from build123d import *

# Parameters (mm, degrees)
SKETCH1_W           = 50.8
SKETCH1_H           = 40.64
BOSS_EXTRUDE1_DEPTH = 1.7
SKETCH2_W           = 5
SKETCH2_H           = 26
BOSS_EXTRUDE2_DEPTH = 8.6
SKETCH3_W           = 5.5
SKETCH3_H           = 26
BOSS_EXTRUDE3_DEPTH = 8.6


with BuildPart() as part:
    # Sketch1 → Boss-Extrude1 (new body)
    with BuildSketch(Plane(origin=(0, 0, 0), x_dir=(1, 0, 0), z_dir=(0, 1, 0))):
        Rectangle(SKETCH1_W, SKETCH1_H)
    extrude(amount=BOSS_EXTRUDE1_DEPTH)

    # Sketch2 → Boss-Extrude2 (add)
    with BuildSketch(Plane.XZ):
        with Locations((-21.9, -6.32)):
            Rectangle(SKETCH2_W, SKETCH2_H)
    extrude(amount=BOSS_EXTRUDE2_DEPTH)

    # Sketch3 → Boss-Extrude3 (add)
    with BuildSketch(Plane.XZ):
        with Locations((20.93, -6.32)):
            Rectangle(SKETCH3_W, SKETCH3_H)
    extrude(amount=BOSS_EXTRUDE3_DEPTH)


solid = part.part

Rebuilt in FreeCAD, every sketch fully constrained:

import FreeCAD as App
import Part
import Sketcher

V = App.Vector
Q = App.Units.Quantity

doc = App.newDocument("Part")
body = doc.addObject("PartDesign::Body", "Body")

# Sketch on XZ plane
sketch1 = body.newObject("Sketcher::SketchObject", "Sketch")
sketch1.AttachmentSupport = (doc.getObject("XZ_Plane"), [""])
sketch1.MapMode = "FlatFace"
sketch1.addGeometry(Part.LineSegment(V(-25.4, -20.32, 0), V(-25.4, 20.32, 0)), False)
sketch1.addGeometry(Part.LineSegment(V(-25.4, 20.32, 0), V(25.4, 20.32, 0)), False)
sketch1.addGeometry(Part.LineSegment(V(25.4, 20.32, 0), V(25.4, -20.32, 0)), False)
sketch1.addGeometry(Part.LineSegment(V(25.4, -20.32, 0), V(-25.4, -20.32, 0)), False)
sketch1.addConstraint(Sketcher.Constraint("Coincident", 0, 2, 1, 1))
sketch1.addConstraint(Sketcher.Constraint("Coincident", 1, 2, 2, 1))
sketch1.addConstraint(Sketcher.Constraint("Coincident", 2, 2, 3, 1))
sketch1.addConstraint(Sketcher.Constraint("Coincident", 3, 2, 0, 1))
sketch1.addConstraint(Sketcher.Constraint("Vertical", 0))
sketch1.addConstraint(Sketcher.Constraint("Horizontal", 1))
sketch1.addConstraint(Sketcher.Constraint("Vertical", 2))
sketch1.addConstraint(Sketcher.Constraint("Horizontal", 3))
sketch1.addConstraint(Sketcher.Constraint("Symmetric", 0, 2, 2, 2, -1, 1))
sketch1.addConstraint(Sketcher.Constraint("DistanceX", 1, 1, 1, 2, Q("50.8 mm")))
sketch1.addConstraint(Sketcher.Constraint("DistanceY", 0, 1, 0, 2, Q("40.64 mm")))
pad1 = body.newObject("PartDesign::Pad", "Pad")
pad1.Profile = sketch1
pad1.Length = 1.7
pad1.Reversed = True

# Sketch on XZ plane
sketch2 = body.newObject("Sketcher::SketchObject", "Sketch001")
sketch2.AttachmentSupport = (doc.getObject("XZ_Plane"), [""])
sketch2.MapMode = "FlatFace"
sketch2.addGeometry(Part.LineSegment(V(-24.4, 6.68, 0), V(-24.4, -19.32, 0)), False)
sketch2.addGeometry(Part.LineSegment(V(-24.4, -19.32, 0), V(-19.4, -19.32, 0)), False)
sketch2.addGeometry(Part.LineSegment(V(-19.4, -19.32, 0), V(-19.4, 6.68, 0)), False)
sketch2.addGeometry(Part.LineSegment(V(-19.4, 6.68, 0), V(-24.4, 6.68, 0)), False)
sketch2.addConstraint(Sketcher.Constraint("Coincident", 0, 2, 1, 1))
sketch2.addConstraint(Sketcher.Constraint("Coincident", 1, 2, 2, 1))
sketch2.addConstraint(Sketcher.Constraint("Coincident", 2, 2, 3, 1))
sketch2.addConstraint(Sketcher.Constraint("Coincident", 3, 2, 0, 1))
sketch2.addConstraint(Sketcher.Constraint("Vertical", 0))
sketch2.addConstraint(Sketcher.Constraint("Horizontal", 1))
sketch2.addConstraint(Sketcher.Constraint("Vertical", 2))
sketch2.addConstraint(Sketcher.Constraint("Horizontal", 3))
sketch2.addConstraint(Sketcher.Constraint("DistanceX", 1, 1, 1, 2, Q("5 mm")))
sketch2.addConstraint(Sketcher.Constraint("DistanceY", 0, 2, 0, 1, Q("26 mm")))
sketch2.addConstraint(Sketcher.Constraint("DistanceX", 0, 2, -1, 1, Q("24.4 mm")))
sketch2.addConstraint(Sketcher.Constraint("DistanceY", 0, 2, -1, 1, Q("19.32 mm")))
pad2 = body.newObject("PartDesign::Pad", "Pad001")
pad2.Profile = sketch2
pad2.Length = 8.6

# Sketch on XZ plane
sketch3 = body.newObject("Sketcher::SketchObject", "Sketch002")
sketch3.AttachmentSupport = (doc.getObject("XZ_Plane"), [""])
sketch3.MapMode = "FlatFace"
sketch3.addGeometry(Part.LineSegment(V(18.18, 6.68, 0), V(18.18, -19.32, 0)), False)
sketch3.addGeometry(Part.LineSegment(V(18.18, -19.32, 0), V(23.68, -19.32, 0)), False)
sketch3.addGeometry(Part.LineSegment(V(23.68, -19.32, 0), V(23.68, 6.68, 0)), False)
sketch3.addGeometry(Part.LineSegment(V(23.68, 6.68, 0), V(18.18, 6.68, 0)), False)
sketch3.addConstraint(Sketcher.Constraint("Coincident", 0, 2, 1, 1))
sketch3.addConstraint(Sketcher.Constraint("Coincident", 1, 2, 2, 1))
sketch3.addConstraint(Sketcher.Constraint("Coincident", 2, 2, 3, 1))
sketch3.addConstraint(Sketcher.Constraint("Coincident", 3, 2, 0, 1))
sketch3.addConstraint(Sketcher.Constraint("Vertical", 0))
sketch3.addConstraint(Sketcher.Constraint("Horizontal", 1))
sketch3.addConstraint(Sketcher.Constraint("Vertical", 2))
sketch3.addConstraint(Sketcher.Constraint("Horizontal", 3))
sketch3.addConstraint(Sketcher.Constraint("DistanceY", 0, 2, 0, 1, Q("26 mm")))
sketch3.addConstraint(Sketcher.Constraint("DistanceX", 1, 1, 1, 2, Q("5.5 mm")))
sketch3.addConstraint(Sketcher.Constraint("DistanceX", -1, 1, 0, 2, Q("18.18 mm")))
sketch3.addConstraint(Sketcher.Constraint("DistanceY", 0, 2, -1, 1, Q("19.32 mm")))
pad3 = body.newObject("PartDesign::Pad", "Pad002")
pad3.Profile = sketch3
pad3.Length = 8.6

doc.recompute()
